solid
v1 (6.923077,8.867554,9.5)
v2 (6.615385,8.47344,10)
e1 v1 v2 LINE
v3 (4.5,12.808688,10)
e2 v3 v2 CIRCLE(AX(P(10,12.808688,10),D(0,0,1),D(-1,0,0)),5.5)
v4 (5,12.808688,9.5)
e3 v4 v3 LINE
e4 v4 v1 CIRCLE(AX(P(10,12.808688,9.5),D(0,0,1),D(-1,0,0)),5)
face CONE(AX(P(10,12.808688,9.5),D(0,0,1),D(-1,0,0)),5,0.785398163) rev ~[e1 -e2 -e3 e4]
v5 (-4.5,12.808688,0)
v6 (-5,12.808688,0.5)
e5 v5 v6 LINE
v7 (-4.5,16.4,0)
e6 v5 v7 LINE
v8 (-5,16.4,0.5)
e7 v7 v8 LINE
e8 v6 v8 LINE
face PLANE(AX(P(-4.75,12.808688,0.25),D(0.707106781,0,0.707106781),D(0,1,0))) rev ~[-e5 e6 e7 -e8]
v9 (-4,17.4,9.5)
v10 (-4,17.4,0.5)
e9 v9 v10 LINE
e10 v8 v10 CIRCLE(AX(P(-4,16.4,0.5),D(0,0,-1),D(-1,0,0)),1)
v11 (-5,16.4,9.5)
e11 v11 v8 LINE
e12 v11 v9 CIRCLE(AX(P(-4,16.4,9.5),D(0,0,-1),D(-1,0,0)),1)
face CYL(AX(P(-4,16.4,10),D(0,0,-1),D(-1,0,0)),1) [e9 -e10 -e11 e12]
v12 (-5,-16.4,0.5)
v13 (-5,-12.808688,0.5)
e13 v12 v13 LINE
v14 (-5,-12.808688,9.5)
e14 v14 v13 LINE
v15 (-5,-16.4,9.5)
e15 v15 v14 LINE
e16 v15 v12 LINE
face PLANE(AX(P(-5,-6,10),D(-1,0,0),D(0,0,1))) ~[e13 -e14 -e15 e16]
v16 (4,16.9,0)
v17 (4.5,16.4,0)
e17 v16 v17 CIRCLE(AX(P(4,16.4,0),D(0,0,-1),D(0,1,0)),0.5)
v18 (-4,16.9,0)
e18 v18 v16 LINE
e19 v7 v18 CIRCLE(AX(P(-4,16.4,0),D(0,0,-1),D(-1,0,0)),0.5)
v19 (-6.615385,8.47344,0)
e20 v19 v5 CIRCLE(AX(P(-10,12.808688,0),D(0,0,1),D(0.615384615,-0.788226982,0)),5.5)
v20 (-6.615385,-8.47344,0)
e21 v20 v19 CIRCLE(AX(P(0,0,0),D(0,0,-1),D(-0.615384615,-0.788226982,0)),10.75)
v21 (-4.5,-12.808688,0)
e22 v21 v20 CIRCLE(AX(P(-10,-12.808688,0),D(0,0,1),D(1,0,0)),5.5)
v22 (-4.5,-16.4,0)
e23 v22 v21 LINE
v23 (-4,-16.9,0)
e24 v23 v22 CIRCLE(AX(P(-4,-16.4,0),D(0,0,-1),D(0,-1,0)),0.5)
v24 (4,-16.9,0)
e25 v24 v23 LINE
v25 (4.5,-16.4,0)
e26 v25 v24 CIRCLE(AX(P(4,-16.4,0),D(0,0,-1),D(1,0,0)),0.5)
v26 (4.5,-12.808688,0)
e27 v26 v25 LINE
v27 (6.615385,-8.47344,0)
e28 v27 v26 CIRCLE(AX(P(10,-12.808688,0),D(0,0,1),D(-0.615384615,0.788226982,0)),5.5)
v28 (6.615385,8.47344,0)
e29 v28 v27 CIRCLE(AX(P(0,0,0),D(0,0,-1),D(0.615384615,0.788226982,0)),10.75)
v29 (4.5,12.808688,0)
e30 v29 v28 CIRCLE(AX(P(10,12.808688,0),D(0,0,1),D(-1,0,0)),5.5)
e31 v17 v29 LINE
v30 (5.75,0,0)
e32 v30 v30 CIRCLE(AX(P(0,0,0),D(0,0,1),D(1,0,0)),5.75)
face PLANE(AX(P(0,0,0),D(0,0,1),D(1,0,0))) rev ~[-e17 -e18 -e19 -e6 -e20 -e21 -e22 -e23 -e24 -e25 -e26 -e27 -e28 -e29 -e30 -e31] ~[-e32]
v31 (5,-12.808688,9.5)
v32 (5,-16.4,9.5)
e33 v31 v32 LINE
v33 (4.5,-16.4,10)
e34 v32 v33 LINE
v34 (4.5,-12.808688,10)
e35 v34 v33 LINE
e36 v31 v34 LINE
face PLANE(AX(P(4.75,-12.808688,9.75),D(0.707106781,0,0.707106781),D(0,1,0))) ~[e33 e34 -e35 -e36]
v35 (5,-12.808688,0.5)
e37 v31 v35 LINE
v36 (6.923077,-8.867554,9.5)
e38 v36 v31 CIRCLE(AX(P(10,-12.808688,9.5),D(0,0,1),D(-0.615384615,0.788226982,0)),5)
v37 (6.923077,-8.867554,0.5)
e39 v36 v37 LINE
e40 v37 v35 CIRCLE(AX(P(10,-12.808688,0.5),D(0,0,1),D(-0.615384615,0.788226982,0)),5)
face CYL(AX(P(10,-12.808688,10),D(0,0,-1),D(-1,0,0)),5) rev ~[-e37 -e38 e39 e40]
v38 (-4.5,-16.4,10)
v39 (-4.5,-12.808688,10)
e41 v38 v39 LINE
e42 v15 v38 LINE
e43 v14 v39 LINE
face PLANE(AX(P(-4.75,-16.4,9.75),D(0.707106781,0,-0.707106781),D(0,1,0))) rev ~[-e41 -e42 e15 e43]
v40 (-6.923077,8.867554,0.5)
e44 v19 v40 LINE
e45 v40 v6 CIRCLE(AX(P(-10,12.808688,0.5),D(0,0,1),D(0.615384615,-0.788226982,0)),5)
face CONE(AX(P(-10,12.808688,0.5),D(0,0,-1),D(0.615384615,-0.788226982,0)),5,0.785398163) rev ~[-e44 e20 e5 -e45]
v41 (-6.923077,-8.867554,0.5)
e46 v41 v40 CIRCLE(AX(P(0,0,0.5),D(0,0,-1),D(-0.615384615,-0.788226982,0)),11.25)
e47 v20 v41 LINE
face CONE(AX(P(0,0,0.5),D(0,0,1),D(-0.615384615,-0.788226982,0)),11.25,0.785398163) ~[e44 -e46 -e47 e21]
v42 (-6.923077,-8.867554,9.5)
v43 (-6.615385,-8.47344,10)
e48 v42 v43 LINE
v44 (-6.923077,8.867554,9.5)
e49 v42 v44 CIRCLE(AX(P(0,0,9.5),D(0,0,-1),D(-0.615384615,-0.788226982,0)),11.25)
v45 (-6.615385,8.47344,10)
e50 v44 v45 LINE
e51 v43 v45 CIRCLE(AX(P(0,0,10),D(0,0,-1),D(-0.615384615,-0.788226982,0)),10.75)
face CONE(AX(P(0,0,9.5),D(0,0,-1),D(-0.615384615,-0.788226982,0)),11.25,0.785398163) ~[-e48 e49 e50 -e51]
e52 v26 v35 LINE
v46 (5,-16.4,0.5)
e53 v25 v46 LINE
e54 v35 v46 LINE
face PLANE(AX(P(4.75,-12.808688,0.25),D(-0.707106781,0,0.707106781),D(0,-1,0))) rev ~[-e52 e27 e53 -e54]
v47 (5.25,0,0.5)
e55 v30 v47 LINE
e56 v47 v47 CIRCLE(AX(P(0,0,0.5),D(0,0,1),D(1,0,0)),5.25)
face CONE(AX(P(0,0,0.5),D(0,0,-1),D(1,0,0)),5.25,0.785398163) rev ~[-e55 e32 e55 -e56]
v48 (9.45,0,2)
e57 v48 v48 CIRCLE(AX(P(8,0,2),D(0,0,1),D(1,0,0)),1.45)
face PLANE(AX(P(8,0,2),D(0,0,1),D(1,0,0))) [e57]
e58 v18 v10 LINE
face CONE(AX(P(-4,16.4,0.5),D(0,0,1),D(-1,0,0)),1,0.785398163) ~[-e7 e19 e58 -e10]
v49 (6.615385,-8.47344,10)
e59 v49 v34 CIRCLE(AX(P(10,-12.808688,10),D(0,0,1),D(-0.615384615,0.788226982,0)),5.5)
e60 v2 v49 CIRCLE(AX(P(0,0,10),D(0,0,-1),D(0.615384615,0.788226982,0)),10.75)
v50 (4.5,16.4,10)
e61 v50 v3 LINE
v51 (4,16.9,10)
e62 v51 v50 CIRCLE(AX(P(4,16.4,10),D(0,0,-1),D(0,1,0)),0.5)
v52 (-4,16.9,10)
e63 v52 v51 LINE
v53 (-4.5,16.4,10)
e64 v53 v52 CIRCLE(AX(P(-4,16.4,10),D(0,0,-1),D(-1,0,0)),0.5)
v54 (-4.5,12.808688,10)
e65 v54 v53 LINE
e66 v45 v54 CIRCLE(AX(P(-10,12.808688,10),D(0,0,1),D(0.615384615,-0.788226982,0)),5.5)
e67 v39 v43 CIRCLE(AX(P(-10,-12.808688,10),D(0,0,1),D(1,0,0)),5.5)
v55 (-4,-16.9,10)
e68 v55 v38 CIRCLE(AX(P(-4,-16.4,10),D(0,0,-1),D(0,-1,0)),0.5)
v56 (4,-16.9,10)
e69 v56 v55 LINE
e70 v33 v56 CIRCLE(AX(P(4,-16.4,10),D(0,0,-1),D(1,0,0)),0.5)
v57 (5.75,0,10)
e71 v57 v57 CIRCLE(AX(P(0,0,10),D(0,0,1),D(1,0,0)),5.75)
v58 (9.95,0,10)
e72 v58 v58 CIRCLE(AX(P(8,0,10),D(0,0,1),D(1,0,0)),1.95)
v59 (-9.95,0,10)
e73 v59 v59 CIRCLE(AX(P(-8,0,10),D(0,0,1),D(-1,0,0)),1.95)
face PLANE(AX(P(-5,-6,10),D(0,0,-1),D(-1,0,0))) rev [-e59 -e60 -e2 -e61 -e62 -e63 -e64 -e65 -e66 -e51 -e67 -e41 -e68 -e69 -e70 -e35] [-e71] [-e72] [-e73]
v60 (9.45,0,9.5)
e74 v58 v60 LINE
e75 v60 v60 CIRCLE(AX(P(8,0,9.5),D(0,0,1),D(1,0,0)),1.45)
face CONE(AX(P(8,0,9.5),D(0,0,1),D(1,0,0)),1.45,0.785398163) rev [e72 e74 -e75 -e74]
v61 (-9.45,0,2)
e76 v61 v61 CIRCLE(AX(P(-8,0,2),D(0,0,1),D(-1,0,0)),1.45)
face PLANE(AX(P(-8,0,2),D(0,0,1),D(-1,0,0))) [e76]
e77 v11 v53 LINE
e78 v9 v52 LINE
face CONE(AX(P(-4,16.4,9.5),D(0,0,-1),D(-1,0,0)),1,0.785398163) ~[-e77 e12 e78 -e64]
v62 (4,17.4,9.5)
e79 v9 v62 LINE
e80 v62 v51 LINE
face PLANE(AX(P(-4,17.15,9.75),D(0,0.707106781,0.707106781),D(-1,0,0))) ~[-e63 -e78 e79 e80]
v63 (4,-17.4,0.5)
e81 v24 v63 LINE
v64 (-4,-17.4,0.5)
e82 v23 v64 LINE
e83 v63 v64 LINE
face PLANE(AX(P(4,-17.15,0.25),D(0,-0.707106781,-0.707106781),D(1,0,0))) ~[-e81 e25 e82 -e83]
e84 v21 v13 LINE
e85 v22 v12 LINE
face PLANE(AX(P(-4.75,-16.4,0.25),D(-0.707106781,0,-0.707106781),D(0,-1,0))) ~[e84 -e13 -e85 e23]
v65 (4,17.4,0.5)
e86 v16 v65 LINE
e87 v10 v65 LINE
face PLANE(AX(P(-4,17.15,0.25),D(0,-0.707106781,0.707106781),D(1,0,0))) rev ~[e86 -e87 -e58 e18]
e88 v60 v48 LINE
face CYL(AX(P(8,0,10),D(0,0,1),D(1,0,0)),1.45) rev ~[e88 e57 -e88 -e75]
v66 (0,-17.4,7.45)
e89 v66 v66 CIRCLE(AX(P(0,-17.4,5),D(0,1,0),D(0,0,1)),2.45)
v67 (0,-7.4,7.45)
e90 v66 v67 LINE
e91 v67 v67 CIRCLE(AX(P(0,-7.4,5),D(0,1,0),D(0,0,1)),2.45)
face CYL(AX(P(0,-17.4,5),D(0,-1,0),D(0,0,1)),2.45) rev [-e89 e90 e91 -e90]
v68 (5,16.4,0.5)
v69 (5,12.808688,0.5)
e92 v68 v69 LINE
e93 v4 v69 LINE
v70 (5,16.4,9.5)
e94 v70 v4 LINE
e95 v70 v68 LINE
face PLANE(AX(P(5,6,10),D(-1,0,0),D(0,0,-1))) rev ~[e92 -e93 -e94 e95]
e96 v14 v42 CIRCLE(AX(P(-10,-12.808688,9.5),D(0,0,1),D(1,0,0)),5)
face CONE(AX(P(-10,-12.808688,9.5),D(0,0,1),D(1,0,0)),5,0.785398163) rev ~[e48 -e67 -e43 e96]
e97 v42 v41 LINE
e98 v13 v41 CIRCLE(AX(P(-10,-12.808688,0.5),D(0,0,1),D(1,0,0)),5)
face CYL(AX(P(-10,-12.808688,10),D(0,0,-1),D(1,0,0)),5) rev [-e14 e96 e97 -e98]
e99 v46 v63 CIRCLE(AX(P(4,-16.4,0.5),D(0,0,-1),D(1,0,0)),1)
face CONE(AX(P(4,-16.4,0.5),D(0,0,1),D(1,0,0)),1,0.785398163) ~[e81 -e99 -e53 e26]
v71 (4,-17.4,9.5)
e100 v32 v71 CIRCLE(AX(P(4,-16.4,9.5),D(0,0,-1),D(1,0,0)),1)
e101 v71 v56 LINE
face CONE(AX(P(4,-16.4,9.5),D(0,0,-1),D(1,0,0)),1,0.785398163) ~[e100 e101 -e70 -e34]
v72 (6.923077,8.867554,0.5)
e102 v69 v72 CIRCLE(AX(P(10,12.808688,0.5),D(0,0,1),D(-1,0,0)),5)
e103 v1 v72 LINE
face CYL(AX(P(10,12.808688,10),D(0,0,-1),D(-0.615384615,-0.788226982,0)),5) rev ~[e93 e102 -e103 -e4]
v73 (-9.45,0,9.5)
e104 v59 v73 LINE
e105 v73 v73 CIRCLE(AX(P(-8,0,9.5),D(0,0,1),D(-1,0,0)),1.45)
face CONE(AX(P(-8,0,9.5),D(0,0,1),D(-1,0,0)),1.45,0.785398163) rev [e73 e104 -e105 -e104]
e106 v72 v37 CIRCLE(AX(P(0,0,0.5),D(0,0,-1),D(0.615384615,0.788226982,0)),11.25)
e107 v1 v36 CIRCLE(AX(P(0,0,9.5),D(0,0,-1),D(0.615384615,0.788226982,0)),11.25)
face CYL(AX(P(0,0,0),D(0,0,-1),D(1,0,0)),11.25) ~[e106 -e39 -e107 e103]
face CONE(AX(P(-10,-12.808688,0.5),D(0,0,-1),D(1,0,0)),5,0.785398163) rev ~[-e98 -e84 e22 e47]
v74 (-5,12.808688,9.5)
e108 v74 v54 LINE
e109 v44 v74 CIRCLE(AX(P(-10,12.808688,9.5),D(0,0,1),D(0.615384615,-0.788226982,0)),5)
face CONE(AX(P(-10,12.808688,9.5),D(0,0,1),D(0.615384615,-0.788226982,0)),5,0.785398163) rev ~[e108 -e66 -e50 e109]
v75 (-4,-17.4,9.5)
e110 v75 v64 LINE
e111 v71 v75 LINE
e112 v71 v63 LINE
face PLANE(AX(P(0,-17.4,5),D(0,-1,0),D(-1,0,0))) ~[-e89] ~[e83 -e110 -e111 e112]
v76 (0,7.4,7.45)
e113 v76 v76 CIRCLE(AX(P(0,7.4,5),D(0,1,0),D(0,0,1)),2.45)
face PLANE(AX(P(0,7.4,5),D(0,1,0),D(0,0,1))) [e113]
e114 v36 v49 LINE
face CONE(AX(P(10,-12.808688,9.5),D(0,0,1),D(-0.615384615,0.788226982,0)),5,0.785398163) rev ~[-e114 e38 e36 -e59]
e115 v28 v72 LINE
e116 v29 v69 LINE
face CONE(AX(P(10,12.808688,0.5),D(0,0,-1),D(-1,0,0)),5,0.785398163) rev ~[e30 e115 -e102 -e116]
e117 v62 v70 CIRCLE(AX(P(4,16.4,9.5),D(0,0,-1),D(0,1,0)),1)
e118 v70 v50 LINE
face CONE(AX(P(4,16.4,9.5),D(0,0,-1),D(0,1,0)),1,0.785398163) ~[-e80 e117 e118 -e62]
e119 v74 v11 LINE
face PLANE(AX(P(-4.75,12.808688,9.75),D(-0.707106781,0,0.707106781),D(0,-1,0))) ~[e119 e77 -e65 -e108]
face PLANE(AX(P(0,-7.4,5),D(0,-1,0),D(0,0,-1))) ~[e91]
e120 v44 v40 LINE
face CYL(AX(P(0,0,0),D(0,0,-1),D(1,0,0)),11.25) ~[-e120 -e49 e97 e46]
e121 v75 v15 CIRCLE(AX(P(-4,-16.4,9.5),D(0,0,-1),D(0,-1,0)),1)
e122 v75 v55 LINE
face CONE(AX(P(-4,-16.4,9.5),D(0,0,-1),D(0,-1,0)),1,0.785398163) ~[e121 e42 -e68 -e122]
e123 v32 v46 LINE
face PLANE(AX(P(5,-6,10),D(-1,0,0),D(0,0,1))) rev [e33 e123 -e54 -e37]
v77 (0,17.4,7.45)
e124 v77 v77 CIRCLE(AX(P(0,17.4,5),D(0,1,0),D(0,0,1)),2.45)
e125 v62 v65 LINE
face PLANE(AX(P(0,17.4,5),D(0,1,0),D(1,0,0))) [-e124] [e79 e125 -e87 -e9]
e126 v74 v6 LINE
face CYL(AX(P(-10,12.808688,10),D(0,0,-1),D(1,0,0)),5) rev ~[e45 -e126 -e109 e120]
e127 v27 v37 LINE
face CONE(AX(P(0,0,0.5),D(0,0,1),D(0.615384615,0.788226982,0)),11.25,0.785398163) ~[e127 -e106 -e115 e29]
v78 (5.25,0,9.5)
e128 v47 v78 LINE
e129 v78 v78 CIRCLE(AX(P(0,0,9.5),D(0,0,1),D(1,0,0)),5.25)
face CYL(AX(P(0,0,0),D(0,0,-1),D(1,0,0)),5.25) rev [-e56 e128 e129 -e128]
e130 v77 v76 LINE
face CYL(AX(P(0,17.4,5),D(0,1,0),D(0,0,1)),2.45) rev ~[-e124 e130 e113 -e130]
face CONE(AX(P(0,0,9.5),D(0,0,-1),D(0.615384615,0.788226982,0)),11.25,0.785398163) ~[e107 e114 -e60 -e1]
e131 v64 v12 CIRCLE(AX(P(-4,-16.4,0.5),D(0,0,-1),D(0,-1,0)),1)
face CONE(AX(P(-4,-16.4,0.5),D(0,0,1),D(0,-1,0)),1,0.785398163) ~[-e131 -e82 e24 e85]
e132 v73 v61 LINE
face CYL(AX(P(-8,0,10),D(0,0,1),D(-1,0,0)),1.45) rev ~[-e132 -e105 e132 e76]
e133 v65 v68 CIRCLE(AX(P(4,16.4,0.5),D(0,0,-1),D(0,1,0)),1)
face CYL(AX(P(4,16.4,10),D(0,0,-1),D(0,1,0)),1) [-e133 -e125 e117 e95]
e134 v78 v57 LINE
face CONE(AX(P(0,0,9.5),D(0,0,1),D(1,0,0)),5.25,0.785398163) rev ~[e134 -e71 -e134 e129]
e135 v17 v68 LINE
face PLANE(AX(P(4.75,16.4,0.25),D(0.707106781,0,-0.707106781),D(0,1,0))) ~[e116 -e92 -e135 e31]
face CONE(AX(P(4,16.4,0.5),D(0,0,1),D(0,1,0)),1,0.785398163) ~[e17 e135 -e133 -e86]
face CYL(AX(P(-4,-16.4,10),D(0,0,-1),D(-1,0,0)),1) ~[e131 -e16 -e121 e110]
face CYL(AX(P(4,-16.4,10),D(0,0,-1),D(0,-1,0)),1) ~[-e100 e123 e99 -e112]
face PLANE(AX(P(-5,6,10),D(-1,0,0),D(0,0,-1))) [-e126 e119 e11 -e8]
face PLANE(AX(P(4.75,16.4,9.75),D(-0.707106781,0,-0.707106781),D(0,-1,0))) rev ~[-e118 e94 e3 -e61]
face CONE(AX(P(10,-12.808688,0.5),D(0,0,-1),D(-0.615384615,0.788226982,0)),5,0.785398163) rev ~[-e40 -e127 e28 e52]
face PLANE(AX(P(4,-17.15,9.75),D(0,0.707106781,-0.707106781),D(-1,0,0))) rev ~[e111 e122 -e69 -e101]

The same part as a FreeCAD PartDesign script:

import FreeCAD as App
import Part
import Sketcher


def edges_at(feature, points):
    """Names of the edges that pass closest to the given points."""
    edges = feature.Shape.Edges
    near = lambda p: min(range(len(edges)), key=lambda i: edges[i].distToShape(Part.Vertex(*p))[0])
    return sorted({f"Edge{near(p) + 1}" for p in points})


def add_polygon(sketch, points):
    """Adds a closed chain of lines whose ends are joined by coincident constraints."""
    first, n = sketch.GeometryCount, len(points)
    for a, b in zip(points, points[1:] + points[:1]):
        sketch.addGeometry(Part.LineSegment(App.Vector(*a, 0), App.Vector(*b, 0)), False)
    for i in range(n):
        sketch.addConstraint(Sketcher.Constraint("Coincident", first + i, 2, first + (i + 1) % n, 1))

doc = App.newDocument("Part")
body = doc.addObject("PartDesign::Body", "Body")

# Sketch on XY plane
sketch1 = body.newObject("Sketcher::SketchObject", "Sketch")
sketch1.AttachmentSupport = (doc.getObject("XY_Plane"), [""])
sketch1.MapMode = "FlatFace"
sketch1.addGeometry([
    Part.Circle(App.Vector(0, 0, 0), App.Vector(0, 0, 1), 11.25),
    Part.Circle(App.Vector(0, 0, 0), App.Vector(0, 0, 1), 5.25),
], False)
sketch1.addConstraint([
    Sketcher.Constraint("Coincident", 0, 3, -1, 1),
    Sketcher.Constraint("Coincident", 1, 3, -1, 1),
    Sketcher.Constraint("Diameter", 0, 22.5),
    Sketcher.Constraint("Diameter", 1, 10.5),
])
pad1 = body.newObject("PartDesign::Pad", "Pad")
pad1.Profile = sketch1
pad1.Length = 10

# Sketch on XZ plane
sketch2 = body.newObject("Sketcher::SketchObject", "Sketch001")
sketch2.AttachmentSupport = (doc.getObject("XZ_Plane"), [""])
sketch2.MapMode = "FlatFace"
sketch2.AttachmentOffset = App.Placement(App.Vector(0, 0, -6), App.Rotation())
add_polygon(sketch2, [(-5, 0), (-5, 10), (5, 10), (5, 0)])  # lines 0-3
sketch2.addConstraint([
    Sketcher.Constraint("Vertical", 0),
    Sketcher.Constraint("Horizontal", 1),
    Sketcher.Constraint("Vertical", 2),
    Sketcher.Constraint("Horizontal", 3),
    Sketcher.Constraint("Symmetric", 2, 2, 3, 2, -1, 1),
    Sketcher.Constraint("Equal", 3, 0),
    Sketcher.Constraint("DistanceX", 1, 1, 1, 2, 10.0),
])
pad2 = body.newObject("PartDesign::Pad", "Pad001")
pad2.Profile = sketch2
pad2.Length = 11.4
pad2.Reversed = True

# Sketch on XZ plane
sketch3 = body.newObject("Sketcher::SketchObject", "Sketch002")
sketch3.AttachmentSupport = (doc.getObject("XZ_Plane"), [""])
sketch3.MapMode = "FlatFace"
sketch3.AttachmentOffset = App.Placement(App.Vector(0, 0, -17.4), App.Rotation())
sketch3.addGeometry(Part.Circle(App.Vector(0, 5, 0), App.Vector(0, 0, 1), 2.45), False)
sketch3.addConstraint([
    Sketcher.Constraint("PointOnObject", 0, 3, -2),
    Sketcher.Constraint("Diameter", 0, 4.9),
    Sketcher.Constraint("DistanceY", -1, 1, 0, 3, 5.0),
])
pocket1 = body.newObject("PartDesign::Pocket", "Pocket")
pocket1.Profile = sketch3
pocket1.Length = 10
pocket1.Reversed = True
doc.recompute()

mirrored = body.newObject("PartDesign::Mirrored", "Mirrored")
mirrored.Originals = [pad2, pocket1]
mirrored.MirrorPlane = (doc.getObject("XZ_Plane"), [""])
body.Tip = mirrored

# Sketch on XY plane
sketch4 = body.newObject("Sketcher::SketchObject", "Sketch003")
sketch4.AttachmentSupport = (doc.getObject("XY_Plane"), [""])
sketch4.MapMode = "FlatFace"
sketch4.AttachmentOffset = App.Placement(App.Vector(0, 0, 10), App.Rotation())
sketch4.addGeometry([
    Part.Circle(App.Vector(8, 0, 0), App.Vector(0, 0, 1), 1.45),
    Part.Circle(App.Vector(-8, 0, 0), App.Vector(0, 0, 1), 1.45),
], False)
sketch4.addConstraint([
    Sketcher.Constraint("Equal", 0, 1),
    Sketcher.Constraint("Symmetric", 0, 3, 1, 3, -1, 1),
    Sketcher.Constraint("PointOnObject", 0, 3, -1),
    Sketcher.Constraint("Diameter", 0, 2.9),
    Sketcher.Constraint("DistanceX", -1, 1, 0, 3, 8.0),
])
pocket2 = body.newObject("PartDesign::Pocket", "Pocket001")
pocket2.Profile = sketch4
pocket2.Length = 8
doc.recompute()

fillet = body.newObject("PartDesign::Fillet", "Fillet")
fillet.Base = (pocket2, edges_at(pocket2, [
    (-5, 10.078, 5),
    (5, 10.078, 5),
    (5, -10.078, 5),
    (-5, -10.078, 5),
]))
fillet.Radius = 5
doc.recompute()

fillet2 = body.newObject("PartDesign::Fillet", "Fillet001")
fillet2.Base = (fillet, edges_at(fillet, [
    (5, 17.4, 5),
    (-5, 17.4, 5),
    (5, -17.4, 5),
    (-5, -17.4, 5),
]))
fillet2.Radius = 1
doc.recompute()

chamfer = body.newObject("PartDesign::Chamfer", "Chamfer")
chamfer.Base = (fillet2, edges_at(fillet2, [
    (-5, 14.604, 10),
    (-5, -14.604, 10),
    (0, -17.4, 10),
    (5, -14.604, 10),
    (5, 14.604, 10),
    (-4.707, -17.107, 10),
    (4.707, -17.107, 10),
    (4.707, 17.107, 10),
    (-4.707, 17.107, 10),
    (-5, 14.604, 0),
    (5, -14.604, 0),
    (0, -17.4, 0),
    (-5, -14.604, 0),
    (5, 14.604, 0),
    (-4.707, -17.107, 0),
    (4.707, -17.107, 0),
    (4.707, 17.107, 0),
    (-4.707, 17.107, 0),
    (-5.25, 0, 0),
    (-5.25, 0, 10),
    (6.55, 0, 10),
    (-6.55, 0, 10),
    (-11.25, 0, 0),
    (-11.25, 0, 10),
    (11.25, 0, 10),
    (11.25, 0, 0),
    (-5.506, -10.616, 10),
    (-5.506, -10.616, 0),
    (-5.506, 10.616, 10),
    (-5.506, 10.616, 0),
    (5.506, 10.616, 0),
    (5.506, 10.616, 10),
    (5.506, -10.616, 0),
    (5.506, -10.616, 10),
    (0, 17.4, 0),
    (0, 17.4, 10),
]))
chamfer.Size = 0.5

doc.recompute()
